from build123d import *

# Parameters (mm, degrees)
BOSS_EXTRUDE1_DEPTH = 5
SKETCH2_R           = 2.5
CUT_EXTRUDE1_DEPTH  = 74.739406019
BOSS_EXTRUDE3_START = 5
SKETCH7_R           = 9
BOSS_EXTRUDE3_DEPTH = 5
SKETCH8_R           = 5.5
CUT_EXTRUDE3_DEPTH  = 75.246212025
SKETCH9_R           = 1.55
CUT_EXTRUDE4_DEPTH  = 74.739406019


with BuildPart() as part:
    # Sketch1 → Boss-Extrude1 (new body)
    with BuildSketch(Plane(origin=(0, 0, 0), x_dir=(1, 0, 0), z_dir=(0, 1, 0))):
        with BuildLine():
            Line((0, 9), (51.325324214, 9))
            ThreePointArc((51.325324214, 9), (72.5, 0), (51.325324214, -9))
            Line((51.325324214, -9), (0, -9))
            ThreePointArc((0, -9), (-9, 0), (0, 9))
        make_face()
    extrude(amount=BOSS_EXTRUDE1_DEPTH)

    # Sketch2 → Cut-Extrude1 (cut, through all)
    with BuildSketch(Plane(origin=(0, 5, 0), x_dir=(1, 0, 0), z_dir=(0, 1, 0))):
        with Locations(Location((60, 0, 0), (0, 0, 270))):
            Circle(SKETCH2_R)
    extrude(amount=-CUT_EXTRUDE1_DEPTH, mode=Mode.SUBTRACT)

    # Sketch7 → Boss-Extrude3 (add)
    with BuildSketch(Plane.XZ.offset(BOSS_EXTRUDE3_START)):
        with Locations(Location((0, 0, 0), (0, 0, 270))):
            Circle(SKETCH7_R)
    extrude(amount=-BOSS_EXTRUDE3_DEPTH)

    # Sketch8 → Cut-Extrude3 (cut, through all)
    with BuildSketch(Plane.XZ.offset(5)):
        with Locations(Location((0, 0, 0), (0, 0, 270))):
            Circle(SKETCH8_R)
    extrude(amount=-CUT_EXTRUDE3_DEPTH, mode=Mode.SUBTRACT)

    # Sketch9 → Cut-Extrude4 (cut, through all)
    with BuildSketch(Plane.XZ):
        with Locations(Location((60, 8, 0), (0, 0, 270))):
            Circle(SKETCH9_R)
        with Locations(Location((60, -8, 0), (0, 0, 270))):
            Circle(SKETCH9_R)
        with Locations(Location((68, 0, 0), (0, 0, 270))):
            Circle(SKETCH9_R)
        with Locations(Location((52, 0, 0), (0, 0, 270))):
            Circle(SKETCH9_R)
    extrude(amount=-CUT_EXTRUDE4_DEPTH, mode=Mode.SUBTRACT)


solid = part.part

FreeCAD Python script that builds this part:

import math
import FreeCAD as App
import Part
import Sketcher
Q = App.Units.Quantity

doc = App.newDocument("Part")
params = doc.addObject("Spreadsheet::Sheet", "Params")
for row, (alias, value) in enumerate([
    ("sketch1_radius", "9 mm"),
    ("sketch1_radius2", "12.5 mm"),
    ("pad1_length", "5 mm"),
    ("sketch2_diameter", "5 mm"),
    ("sketch3_diameter", "18 mm"),
    ("pad2_length", "5 mm"),
    ("sketch4_diameter", "11 mm"),
    ("sketch5_diameter", "3.1 mm"),
], start=1):
    params.set(f"A{row}", alias)
    params.set(f"B{row}", "=" + value)
    params.setAlias(f"B{row}", alias)

body = doc.addObject("PartDesign::Body", "Body")

sketch1 = body.newObject("Sketcher::SketchObject", "Sketch")
sketch1.AttachmentSupport = (doc.getObject("XZ_Plane"), [""])
sketch1.MapMode = "FlatFace"
sketch1.addGeometry(Part.LineSegment(App.Vector(51.325324, -9, 0), App.Vector(0, -9, 0)), False)
sketch1.addGeometry(Part.ArcOfCircle(Part.Circle(App.Vector(0, 0, 0), App.Vector(0, 0, 1), 9), math.radians(90), math.radians(270)), False)
sketch1.addGeometry(Part.LineSegment(App.Vector(0, 9, 0), App.Vector(51.325324, 9, 0)), False)
sketch1.addGeometry(Part.ArcOfCircle(Part.Circle(App.Vector(60, 0, 0), App.Vector(0, 0, 1), 12.5), math.radians(-133.94552), math.radians(133.94552)), False)
sketch1.addConstraint(Sketcher.Constraint("Tangent", 0, 2, 1, 2))
sketch1.addConstraint(Sketcher.Constraint("Tangent", 1, 1, 2, 1))
sketch1.addConstraint(Sketcher.Constraint("Coincident", 2, 2, 3, 2))
sketch1.addConstraint(Sketcher.Constraint("Coincident", 3, 1, 0, 1))
sketch1.addConstraint(Sketcher.Constraint("Horizontal", 0))
sketch1.addConstraint(Sketcher.Constraint("Horizontal", 2))
sketch1.addConstraint(Sketcher.Constraint("Coincident", 1, 3, -1, 1))
sketch1.addConstraint(Sketcher.Constraint("PointOnObject", 3, 3, -1))
sketch1.addConstraint(Sketcher.Constraint("Radius", 1, Q("9 mm")))
sketch1.addConstraint(Sketcher.Constraint("Radius", 3, Q("12.5 mm")))
sketch1.addConstraint(Sketcher.Constraint("DistanceX", -1, 1, 3, 3, Q("60 mm")))
sketch1.setExpression("Constraints[8]", "Params.sketch1_radius")
sketch1.setExpression("Constraints[9]", "Params.sketch1_radius2")
pad1 = body.newObject("PartDesign::Pad", "Pad")
pad1.Profile = sketch1
pad1.setExpression("Length", "Params.pad1_length")
pad1.Reversed = True

sketch2 = body.newObject("Sketcher::SketchObject", "Sketch001")
sketch2.AttachmentSupport = (doc.getObject("XZ_Plane"), [""])
sketch2.MapMode = "FlatFace"
sketch2.AttachmentOffset = App.Placement(App.Vector(0, 0, -5), App.Rotation())
sketch2.addGeometry(Part.Circle(App.Vector(60, 0, 0), App.Vector(0, 0, 1), 2.5), False)
sketch2.addConstraint(Sketcher.Constraint("PointOnObject", 0, 3, -1))
sketch2.addConstraint(Sketcher.Constraint("Diameter", 0, Q("5 mm")))
sketch2.addConstraint(Sketcher.Constraint("DistanceX", -1, 1, 0, 3, Q("60 mm")))
sketch2.setExpression("Constraints[1]", "Params.sketch2_diameter")
pocket1 = body.newObject("PartDesign::Pocket", "Pocket")
pocket1.Profile = sketch2
pocket1.Type = "ThroughAll"
pocket1.Reversed = True

sketch3 = body.newObject("Sketcher::SketchObject", "Sketch002")
sketch3.AttachmentSupport = (doc.getObject("XZ_Plane"), [""])
sketch3.MapMode = "FlatFace"
sketch3.AttachmentOffset = App.Placement(App.Vector(0, 0, 5), App.Rotation())
sketch3.addGeometry(Part.Circle(App.Vector(0, 0, 0), App.Vector(0, 0, 1), 9), False)
sketch3.addConstraint(Sketcher.Constraint("Coincident", 0, 3, -1, 1))
sketch3.addConstraint(Sketcher.Constraint("Diameter", 0, Q("18 mm")))
sketch3.setExpression("Constraints[1]", "Params.sketch3_diameter")
pad2 = body.newObject("PartDesign::Pad", "Pad001")
pad2.Profile = sketch3
pad2.setExpression("Length", "Params.pad2_length")
pad2.Reversed = True

sketch4 = body.newObject("Sketcher::SketchObject", "Sketch003")
sketch4.AttachmentSupport = (doc.getObject("XZ_Plane"), [""])
sketch4.MapMode = "FlatFace"
sketch4.AttachmentOffset = App.Placement(App.Vector(0, 0, 5), App.Rotation())
sketch4.addGeometry(Part.Circle(App.Vector(0, 0, 0), App.Vector(0, 0, 1), 5.5), False)
sketch4.addConstraint(Sketcher.Constraint("Coincident", 0, 3, -1, 1))
sketch4.addConstraint(Sketcher.Constraint("Diameter", 0, Q("11 mm")))
sketch4.setExpression("Constraints[1]", "Params.sketch4_diameter")
pocket2 = body.newObject("PartDesign::Pocket", "Pocket001")
pocket2.Profile = sketch4
pocket2.Type = "ThroughAll"

sketch5 = body.newObject("Sketcher::SketchObject", "Sketch004")
sketch5.AttachmentSupport = (doc.getObject("XZ_Plane"), [""])
sketch5.MapMode = "FlatFace"
sketch5.addGeometry(Part.Circle(App.Vector(60, 8, 0), App.Vector(0, 0, 1), 1.55), False)
sketch5.addGeometry(Part.Circle(App.Vector(60, -8, 0), App.Vector(0, 0, 1), 1.55), False)
sketch5.addGeometry(Part.Circle(App.Vector(68, 0, 0), App.Vector(0, 0, 1), 1.55), False)
sketch5.addGeometry(Part.Circle(App.Vector(52, 0, 0), App.Vector(0, 0, 1), 1.55), False)
sketch5.addConstraint(Sketcher.Constraint("Equal", 0, 1))
sketch5.addConstraint(Sketcher.Constraint("Equal", 1, 2))
sketch5.addConstraint(Sketcher.Constraint("Equal", 2, 3))
sketch5.addConstraint(Sketcher.Constraint("Symmetric", 0, 3, 1, 3, -1))
sketch5.addConstraint(Sketcher.Constraint("PointOnObject", 2, 3, -1))
sketch5.addConstraint(Sketcher.Constraint("PointOnObject", 3, 3, -1))
sketch5.addConstraint(Sketcher.Constraint("Diameter", 0, Q("3.1 mm")))
sketch5.addConstraint(Sketcher.Constraint("DistanceX", -1, 1, 0, 3, Q("60 mm")))
sketch5.addConstraint(Sketcher.Constraint("DistanceY", -1, 1, 0, 3, Q("8 mm")))
sketch5.addConstraint(Sketcher.Constraint("DistanceX", -1, 1, 2, 3, Q("68 mm")))
sketch5.addConstraint(Sketcher.Constraint("DistanceX", -1, 1, 3, 3, Q("52 mm")))
sketch5.setExpression("Constraints[6]", "Params.sketch5_diameter")
pocket3 = body.newObject("PartDesign::Pocket", "Pocket002")
pocket3.Profile = sketch5
pocket3.Type = "ThroughAll"

doc.recompute()
